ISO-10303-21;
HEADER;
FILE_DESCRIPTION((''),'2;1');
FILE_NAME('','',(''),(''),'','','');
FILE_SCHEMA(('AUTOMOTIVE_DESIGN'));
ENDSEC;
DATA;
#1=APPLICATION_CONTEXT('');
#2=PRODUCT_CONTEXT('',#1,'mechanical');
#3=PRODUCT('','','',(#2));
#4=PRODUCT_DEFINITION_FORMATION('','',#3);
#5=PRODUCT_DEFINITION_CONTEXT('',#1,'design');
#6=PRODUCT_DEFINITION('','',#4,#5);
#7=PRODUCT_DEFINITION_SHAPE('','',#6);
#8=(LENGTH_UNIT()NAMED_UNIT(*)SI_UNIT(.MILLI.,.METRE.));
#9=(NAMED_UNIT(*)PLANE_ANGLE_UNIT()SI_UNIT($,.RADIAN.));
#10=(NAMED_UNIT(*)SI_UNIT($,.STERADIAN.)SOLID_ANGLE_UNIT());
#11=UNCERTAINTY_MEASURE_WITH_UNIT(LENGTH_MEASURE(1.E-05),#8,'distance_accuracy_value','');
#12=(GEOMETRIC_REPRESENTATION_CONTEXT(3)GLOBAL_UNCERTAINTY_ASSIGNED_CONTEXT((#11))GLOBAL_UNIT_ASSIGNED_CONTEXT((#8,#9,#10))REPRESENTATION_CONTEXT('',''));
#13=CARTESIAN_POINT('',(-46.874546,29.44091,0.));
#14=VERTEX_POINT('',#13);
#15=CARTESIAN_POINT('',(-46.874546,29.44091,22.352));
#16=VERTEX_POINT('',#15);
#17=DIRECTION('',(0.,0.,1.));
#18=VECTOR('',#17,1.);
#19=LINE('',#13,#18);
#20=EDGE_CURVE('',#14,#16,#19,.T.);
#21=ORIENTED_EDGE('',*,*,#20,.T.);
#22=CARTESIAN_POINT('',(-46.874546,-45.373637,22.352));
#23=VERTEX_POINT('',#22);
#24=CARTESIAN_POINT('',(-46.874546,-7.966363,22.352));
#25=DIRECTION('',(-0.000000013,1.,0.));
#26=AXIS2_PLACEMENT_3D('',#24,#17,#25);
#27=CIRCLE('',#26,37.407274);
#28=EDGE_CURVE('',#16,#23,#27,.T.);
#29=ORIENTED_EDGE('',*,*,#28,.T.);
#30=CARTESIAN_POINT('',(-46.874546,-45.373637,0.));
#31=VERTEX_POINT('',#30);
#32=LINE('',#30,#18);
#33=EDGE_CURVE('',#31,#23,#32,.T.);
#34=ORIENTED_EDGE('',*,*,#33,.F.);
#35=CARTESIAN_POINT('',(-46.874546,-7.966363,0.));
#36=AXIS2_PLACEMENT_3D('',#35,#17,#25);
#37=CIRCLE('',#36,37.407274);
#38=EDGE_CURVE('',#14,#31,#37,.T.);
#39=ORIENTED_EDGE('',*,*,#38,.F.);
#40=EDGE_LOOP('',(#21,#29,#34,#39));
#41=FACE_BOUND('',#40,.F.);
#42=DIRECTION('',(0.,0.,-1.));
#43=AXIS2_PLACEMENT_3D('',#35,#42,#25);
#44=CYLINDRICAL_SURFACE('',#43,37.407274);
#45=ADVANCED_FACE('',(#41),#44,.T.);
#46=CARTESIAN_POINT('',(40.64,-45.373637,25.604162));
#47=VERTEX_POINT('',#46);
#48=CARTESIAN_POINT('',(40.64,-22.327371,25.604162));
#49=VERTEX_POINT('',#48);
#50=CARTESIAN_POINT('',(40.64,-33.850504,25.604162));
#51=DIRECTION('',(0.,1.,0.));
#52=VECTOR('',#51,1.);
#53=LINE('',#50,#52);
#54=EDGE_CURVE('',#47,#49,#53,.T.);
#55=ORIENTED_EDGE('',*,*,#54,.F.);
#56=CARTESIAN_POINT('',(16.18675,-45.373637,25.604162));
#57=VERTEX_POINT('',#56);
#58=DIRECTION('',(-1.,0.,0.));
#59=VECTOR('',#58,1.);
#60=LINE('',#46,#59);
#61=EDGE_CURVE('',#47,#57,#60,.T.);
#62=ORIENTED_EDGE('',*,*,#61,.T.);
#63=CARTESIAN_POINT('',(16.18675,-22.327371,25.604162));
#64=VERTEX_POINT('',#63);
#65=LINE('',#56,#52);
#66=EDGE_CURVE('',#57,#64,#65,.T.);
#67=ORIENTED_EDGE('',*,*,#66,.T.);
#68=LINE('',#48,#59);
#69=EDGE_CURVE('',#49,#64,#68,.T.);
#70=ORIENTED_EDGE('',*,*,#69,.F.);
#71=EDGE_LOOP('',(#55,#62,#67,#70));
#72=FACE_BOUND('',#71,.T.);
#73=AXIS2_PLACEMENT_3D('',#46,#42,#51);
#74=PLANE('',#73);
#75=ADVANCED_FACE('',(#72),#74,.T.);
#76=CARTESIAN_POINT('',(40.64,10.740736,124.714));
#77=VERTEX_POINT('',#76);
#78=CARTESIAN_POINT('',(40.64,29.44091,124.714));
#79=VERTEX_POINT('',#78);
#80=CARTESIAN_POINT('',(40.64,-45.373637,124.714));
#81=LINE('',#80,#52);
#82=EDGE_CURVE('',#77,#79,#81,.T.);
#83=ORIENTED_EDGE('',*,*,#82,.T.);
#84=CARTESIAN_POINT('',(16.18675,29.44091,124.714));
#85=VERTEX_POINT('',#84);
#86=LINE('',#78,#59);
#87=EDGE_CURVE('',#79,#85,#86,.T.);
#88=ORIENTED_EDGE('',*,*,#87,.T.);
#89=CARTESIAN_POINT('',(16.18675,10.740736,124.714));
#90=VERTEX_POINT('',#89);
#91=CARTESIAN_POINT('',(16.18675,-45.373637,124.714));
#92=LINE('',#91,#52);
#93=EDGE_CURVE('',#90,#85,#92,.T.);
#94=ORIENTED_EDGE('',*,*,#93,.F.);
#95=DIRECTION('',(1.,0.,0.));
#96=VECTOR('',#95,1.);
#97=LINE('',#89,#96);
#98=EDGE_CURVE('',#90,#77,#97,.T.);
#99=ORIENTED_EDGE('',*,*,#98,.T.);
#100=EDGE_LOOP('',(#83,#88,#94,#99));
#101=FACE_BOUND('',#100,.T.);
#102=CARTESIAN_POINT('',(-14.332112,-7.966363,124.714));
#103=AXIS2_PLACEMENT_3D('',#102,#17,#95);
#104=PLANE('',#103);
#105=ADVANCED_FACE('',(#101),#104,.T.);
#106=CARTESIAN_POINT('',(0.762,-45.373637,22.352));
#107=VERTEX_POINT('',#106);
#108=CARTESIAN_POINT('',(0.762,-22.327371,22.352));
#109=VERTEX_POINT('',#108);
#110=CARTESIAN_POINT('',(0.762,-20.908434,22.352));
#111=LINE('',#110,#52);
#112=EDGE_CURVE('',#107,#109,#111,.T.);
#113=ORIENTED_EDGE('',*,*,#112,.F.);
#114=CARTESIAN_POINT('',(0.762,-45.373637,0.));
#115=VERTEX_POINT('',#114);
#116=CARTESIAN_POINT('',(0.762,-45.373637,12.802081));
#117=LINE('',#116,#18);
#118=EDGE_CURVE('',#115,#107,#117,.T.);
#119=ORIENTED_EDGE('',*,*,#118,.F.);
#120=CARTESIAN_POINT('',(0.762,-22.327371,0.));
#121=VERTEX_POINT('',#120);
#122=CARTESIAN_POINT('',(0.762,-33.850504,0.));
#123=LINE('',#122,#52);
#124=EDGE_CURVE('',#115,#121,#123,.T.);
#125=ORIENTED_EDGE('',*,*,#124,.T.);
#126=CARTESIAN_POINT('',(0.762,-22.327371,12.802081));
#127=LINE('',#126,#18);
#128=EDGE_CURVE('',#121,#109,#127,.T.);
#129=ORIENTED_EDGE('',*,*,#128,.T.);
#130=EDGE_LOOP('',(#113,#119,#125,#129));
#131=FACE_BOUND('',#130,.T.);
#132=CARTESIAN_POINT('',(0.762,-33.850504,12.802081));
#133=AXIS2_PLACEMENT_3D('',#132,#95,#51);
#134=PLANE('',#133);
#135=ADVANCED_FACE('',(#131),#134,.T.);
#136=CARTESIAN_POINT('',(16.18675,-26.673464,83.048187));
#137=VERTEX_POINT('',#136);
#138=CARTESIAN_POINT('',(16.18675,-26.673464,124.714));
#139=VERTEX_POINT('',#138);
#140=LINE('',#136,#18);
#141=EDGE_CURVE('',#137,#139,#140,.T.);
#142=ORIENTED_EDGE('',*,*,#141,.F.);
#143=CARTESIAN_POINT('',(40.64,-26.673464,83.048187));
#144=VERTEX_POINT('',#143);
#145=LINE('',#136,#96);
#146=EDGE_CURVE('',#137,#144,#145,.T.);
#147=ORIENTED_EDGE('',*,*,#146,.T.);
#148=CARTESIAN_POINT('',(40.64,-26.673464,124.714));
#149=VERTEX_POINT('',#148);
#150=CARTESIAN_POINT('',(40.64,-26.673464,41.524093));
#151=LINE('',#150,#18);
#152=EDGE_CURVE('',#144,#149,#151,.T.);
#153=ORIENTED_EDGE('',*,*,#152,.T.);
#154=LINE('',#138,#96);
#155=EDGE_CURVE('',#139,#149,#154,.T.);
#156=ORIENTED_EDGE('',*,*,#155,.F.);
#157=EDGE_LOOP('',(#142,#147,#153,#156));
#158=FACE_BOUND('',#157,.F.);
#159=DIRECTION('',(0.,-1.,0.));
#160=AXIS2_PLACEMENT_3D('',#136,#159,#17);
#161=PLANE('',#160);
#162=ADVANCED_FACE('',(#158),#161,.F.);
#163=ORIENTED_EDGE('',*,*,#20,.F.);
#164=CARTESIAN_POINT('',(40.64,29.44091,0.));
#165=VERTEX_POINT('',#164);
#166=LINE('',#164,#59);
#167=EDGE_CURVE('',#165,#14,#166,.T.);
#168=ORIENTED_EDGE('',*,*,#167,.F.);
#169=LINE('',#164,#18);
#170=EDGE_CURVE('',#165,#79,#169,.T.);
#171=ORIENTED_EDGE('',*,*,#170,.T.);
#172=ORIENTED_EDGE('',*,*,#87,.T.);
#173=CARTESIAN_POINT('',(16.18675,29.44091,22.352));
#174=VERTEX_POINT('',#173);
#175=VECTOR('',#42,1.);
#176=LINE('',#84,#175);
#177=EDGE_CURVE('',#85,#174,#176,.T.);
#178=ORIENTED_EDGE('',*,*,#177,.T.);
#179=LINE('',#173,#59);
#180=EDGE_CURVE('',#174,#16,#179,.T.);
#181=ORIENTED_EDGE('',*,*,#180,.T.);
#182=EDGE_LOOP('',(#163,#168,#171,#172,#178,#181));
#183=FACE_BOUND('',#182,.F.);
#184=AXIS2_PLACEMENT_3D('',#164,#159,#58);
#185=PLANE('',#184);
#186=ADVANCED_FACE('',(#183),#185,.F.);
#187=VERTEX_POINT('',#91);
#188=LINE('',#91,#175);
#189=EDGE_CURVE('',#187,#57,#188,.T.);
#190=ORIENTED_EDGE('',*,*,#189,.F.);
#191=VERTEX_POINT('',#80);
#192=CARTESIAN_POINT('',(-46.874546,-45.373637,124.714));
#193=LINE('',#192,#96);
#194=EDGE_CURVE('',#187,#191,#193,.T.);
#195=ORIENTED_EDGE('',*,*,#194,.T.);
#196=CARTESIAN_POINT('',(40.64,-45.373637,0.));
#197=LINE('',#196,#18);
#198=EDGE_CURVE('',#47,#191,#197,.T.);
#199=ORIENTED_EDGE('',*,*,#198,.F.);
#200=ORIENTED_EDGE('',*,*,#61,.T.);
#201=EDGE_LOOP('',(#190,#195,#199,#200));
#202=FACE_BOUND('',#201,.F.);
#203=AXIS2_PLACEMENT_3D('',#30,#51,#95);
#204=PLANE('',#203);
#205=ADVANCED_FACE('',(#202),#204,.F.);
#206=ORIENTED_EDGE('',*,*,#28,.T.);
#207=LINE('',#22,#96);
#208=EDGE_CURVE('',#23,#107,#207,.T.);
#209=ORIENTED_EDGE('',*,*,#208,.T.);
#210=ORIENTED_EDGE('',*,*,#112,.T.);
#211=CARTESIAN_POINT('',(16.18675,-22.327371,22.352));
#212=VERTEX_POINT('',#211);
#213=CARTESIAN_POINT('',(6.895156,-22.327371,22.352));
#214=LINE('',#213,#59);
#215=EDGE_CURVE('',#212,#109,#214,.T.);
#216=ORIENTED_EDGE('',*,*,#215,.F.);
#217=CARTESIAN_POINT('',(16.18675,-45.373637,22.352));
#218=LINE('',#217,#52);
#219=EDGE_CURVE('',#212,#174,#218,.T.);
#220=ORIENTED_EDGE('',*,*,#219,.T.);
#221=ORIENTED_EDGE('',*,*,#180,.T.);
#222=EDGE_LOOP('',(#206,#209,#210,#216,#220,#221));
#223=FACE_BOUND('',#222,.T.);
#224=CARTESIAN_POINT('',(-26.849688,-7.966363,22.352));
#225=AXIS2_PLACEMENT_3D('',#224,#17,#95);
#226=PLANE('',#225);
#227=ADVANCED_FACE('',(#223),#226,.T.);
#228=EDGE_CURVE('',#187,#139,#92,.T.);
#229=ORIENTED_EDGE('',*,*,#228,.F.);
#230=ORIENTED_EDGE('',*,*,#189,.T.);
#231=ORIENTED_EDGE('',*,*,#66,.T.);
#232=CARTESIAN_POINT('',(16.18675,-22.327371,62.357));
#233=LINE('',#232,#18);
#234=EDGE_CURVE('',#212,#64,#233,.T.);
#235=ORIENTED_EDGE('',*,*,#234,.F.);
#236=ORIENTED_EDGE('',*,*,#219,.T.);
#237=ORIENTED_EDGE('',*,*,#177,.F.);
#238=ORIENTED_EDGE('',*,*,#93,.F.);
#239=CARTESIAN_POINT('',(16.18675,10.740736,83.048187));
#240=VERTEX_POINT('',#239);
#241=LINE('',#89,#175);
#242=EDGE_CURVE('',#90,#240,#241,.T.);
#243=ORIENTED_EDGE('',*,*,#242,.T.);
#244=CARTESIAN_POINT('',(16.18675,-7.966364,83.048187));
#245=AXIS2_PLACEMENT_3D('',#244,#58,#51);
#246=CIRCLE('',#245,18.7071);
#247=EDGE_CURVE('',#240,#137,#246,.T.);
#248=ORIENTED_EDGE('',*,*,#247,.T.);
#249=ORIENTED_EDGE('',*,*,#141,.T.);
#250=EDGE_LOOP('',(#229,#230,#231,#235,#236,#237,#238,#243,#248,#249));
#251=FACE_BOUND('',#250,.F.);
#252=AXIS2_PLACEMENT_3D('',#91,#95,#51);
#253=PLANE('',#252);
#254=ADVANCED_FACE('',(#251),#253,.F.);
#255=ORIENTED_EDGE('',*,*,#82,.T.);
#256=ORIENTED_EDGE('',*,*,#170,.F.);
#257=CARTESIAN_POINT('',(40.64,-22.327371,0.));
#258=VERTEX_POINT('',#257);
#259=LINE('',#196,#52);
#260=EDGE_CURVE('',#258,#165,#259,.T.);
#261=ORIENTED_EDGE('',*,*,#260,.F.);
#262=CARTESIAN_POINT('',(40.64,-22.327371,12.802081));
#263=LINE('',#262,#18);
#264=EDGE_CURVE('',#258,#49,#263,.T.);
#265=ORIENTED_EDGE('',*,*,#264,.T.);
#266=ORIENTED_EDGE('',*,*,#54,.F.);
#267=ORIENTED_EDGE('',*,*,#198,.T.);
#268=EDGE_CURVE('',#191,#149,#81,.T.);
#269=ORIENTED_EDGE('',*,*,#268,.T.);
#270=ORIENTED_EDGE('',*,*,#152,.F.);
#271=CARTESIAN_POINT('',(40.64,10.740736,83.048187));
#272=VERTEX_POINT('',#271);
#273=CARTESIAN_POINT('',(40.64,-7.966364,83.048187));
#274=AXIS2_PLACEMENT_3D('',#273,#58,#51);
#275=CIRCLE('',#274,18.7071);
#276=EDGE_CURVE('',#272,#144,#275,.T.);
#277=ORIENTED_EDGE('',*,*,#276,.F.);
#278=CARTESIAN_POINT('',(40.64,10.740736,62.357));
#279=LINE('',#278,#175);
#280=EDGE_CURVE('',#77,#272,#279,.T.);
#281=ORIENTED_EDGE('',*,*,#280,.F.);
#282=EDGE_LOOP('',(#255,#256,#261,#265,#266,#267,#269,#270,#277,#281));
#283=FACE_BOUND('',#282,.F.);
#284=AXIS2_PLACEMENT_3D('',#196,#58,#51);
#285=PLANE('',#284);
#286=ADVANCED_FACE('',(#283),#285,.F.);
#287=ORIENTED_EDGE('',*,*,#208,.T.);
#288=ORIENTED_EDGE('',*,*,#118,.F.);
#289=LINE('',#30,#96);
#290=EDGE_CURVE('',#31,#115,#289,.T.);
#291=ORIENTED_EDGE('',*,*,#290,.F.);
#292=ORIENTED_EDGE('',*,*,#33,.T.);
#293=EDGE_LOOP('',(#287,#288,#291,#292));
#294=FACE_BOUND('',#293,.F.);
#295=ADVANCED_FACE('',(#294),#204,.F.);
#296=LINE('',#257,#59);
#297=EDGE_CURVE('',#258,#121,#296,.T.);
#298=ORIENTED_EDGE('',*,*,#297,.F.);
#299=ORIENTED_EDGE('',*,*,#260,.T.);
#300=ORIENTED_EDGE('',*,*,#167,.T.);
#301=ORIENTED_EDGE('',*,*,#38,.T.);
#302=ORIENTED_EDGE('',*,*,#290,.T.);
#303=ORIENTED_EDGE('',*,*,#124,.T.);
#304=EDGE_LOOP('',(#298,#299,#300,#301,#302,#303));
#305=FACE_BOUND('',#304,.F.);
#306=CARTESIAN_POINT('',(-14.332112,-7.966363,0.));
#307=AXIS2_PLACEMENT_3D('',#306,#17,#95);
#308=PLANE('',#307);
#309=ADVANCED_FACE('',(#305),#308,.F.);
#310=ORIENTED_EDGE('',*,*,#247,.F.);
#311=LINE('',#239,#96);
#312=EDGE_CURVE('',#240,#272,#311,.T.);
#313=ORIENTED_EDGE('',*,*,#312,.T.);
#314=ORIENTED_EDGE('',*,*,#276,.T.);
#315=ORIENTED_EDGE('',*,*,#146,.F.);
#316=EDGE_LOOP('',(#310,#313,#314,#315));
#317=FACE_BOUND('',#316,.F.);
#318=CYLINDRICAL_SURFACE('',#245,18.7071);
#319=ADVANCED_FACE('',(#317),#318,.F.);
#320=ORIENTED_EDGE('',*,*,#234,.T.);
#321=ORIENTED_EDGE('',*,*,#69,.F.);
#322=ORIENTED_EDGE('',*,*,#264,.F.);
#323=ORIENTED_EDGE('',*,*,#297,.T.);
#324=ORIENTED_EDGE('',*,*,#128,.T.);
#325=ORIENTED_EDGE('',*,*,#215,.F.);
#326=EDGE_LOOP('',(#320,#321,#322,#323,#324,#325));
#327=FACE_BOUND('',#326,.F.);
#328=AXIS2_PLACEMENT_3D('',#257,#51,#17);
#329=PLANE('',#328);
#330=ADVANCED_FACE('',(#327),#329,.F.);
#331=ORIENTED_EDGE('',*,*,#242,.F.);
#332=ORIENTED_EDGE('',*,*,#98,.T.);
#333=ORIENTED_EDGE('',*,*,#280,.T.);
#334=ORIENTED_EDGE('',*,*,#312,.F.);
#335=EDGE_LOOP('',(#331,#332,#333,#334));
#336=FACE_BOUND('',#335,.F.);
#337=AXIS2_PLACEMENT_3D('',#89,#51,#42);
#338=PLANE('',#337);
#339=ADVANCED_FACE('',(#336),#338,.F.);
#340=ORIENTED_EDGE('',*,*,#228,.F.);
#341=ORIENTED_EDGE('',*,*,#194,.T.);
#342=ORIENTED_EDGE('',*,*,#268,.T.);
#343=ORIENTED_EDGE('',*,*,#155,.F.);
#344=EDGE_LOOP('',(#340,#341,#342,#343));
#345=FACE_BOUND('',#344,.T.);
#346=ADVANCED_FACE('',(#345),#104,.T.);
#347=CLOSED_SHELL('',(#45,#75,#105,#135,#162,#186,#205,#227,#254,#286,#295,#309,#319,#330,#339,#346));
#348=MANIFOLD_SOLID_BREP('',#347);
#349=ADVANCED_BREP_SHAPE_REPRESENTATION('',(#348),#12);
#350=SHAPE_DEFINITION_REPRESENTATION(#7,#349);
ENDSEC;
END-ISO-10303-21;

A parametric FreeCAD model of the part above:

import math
import FreeCAD as App
import Part
import Sketcher
Q = App.Units.Quantity

doc = App.newDocument("Part")
body = doc.addObject("PartDesign::Body", "Body")

# Sketch on XY plane
sketch1 = body.newObject("Sketcher::SketchObject", "Sketch")
sketch1.AttachmentSupport = (doc.getObject("XY_Plane"), [""])
sketch1.MapMode = "FlatFace"
sketch1.addGeometry(Part.LineSegment(App.Vector(41, 29, 0), App.Vector(-47, 29, 0)), False)
sketch1.addGeometry(Part.ArcOfCircle(Part.Circle(App.Vector(-47, -8, 0), App.Vector(0, 0, 1), 37), math.radians(90), math.radians(270)), False)
sketch1.addGeometry(Part.LineSegment(App.Vector(-47, -45, 0), App.Vector(41, -45, 0)), False)
sketch1.addGeometry(Part.LineSegment(App.Vector(41, -45, 0), App.Vector(41, 29, 0)), False)
sketch1.addConstraint(Sketcher.Constraint("Tangent", 0, 2, 1, 1))
sketch1.addConstraint(Sketcher.Constraint("Tangent", 1, 2, 2, 1))
sketch1.addConstraint(Sketcher.Constraint("Coincident", 2, 2, 3, 1))
sketch1.addConstraint(Sketcher.Constraint("Coincident", 3, 2, 0, 1))
sketch1.addConstraint(Sketcher.Constraint("Horizontal", 0))
sketch1.addConstraint(Sketcher.Constraint("Horizontal", 2))
sketch1.addConstraint(Sketcher.Constraint("Vertical", 3))
sketch1.addConstraint(Sketcher.Constraint("DistanceX", -1, 1, 2, 2, Q("1.6 in")))
sketch1.addConstraint(Sketcher.Constraint("Radius", 1, 37.407274))
sketch1.addConstraint(Sketcher.Constraint("DistanceX", 0, 2, 0, 1, 87.514546))
sketch1.addConstraint(Sketcher.Constraint("DistanceY", -1, 1, 0, 2, 29.44091))
pad1 = body.newObject("PartDesign::Pad", "Pad")
pad1.Profile = sketch1
pad1.Length = Q("4.91 in")

# Sketch on XY plane
sketch2 = body.newObject("Sketcher::SketchObject", "Sketch001")
sketch2.AttachmentSupport = (doc.getObject("XY_Plane"), [""])
sketch2.MapMode = "FlatFace"
sketch2.AttachmentOffset = App.Placement(App.Vector(0, 0, 4.91 * 25.4), App.Rotation())
sketch2.addGeometry(Part.LineSegment(App.Vector(16, -45, 0), App.Vector(16, 29, 0)), False)
sketch2.addGeometry(Part.LineSegment(App.Vector(16, 29, 0), App.Vector(-47, 29, 0)), False)
sketch2.addGeometry(Part.ArcOfCircle(Part.Circle(App.Vector(-47, -8, 0), App.Vector(0, 0, 1), 37), math.radians(90), math.radians(270)), False)
sketch2.addGeometry(Part.LineSegment(App.Vector(-47, -45, 0), App.Vector(16, -45, 0)), False)
sketch2.addConstraint(Sketcher.Constraint("Coincident", 0, 2, 1, 1))
sketch2.addConstraint(Sketcher.Constraint("Tangent", 1, 2, 2, 1))
sketch2.addConstraint(Sketcher.Constraint("Tangent", 2, 2, 3, 1))
sketch2.addConstraint(Sketcher.Constraint("Coincident", 3, 2, 0, 1))
sketch2.addConstraint(Sketcher.Constraint("Vertical", 0))
sketch2.addConstraint(Sketcher.Constraint("Horizontal", 1))
sketch2.addConstraint(Sketcher.Constraint("Horizontal", 3))
sketch2.addConstraint(Sketcher.Constraint("Radius", 2, 37.407274))
sketch2.addConstraint(Sketcher.Constraint("DistanceX", 1, 2, 1, 1, 63.061296))
sketch2.addConstraint(Sketcher.Constraint("DistanceX", -1, 1, 0, 2, 16.18675))
sketch2.addConstraint(Sketcher.Constraint("DistanceY", -1, 1, 0, 2, 29.44091))
pocket1 = body.newObject("PartDesign::Pocket", "Pocket")
pocket1.Profile = sketch2
pocket1.Length = Q("4.03 in")

# Sketch on YZ plane
sketch3 = body.newObject("Sketcher::SketchObject", "Sketch002")
sketch3.AttachmentSupport = (doc.getObject("YZ_Plane"), [""])
sketch3.MapMode = "FlatFace"
sketch3.AttachmentOffset = App.Placement(App.Vector(0, 0, 16.18675), App.Rotation())
sketch3.addGeometry(Part.LineSegment(App.Vector(-27, 125, 0), App.Vector(11, 125, 0)), False)
sketch3.addGeometry(Part.LineSegment(App.Vector(11, 125, 0), App.Vector(11, 83, 0)), False)
sketch3.addGeometry(Part.ArcOfCircle(Part.Circle(App.Vector(-8, 83, 0), App.Vector(0, 0, 1), 19), math.radians(180), math.radians(360)), False)
sketch3.addGeometry(Part.LineSegment(App.Vector(-27, 83, 0), App.Vector(-27, 125, 0)), False)
sketch3.addConstraint(Sketcher.Constraint("Coincident", 0, 2, 1, 1))
sketch3.addConstraint(Sketcher.Constraint("Tangent", 1, 2, 2, 2))
sketch3.addConstraint(Sketcher.Constraint("Tangent", 2, 1, 3, 1))
sketch3.addConstraint(Sketcher.Constraint("Coincident", 3, 2, 0, 1))
sketch3.addConstraint(Sketcher.Constraint("Horizontal", 0))
sketch3.addConstraint(Sketcher.Constraint("Vertical", 1))
sketch3.addConstraint(Sketcher.Constraint("Vertical", 3))
sketch3.addConstraint(Sketcher.Constraint("Radius", 2, Q("0.7365 in")))
sketch3.addConstraint(Sketcher.Constraint("DistanceY", -1, 1, 0, 2, Q("4.91 in")))
sketch3.addConstraint(Sketcher.Constraint("DistanceY", 1, 2, 1, 1, 41.665813))
sketch3.addConstraint(Sketcher.Constraint("DistanceX", 2, 3, -1, 1, 7.966364))
pocket2 = body.newObject("PartDesign::Pocket", "Pocket001")
pocket2.Profile = sketch3
pocket2.Length = Q("1 in")
pocket2.Reversed = True

# Sketch on YZ plane
sketch4 = body.newObject("Sketcher::SketchObject", "Sketch003")
sketch4.AttachmentSupport = (doc.getObject("YZ_Plane"), [""])
sketch4.MapMode = "FlatFace"
sketch4.AttachmentOffset = App.Placement(App.Vector(0, 0, 1.6 * 25.4), App.Rotation())
sketch4.addGeometry(Part.LineSegment(App.Vector(-45, 26, 0), App.Vector(-45, 0, 0)), False)
sketch4.addGeometry(Part.LineSegment(App.Vector(-45, 0, 0), App.Vector(-22, 0, 0)), False)
sketch4.addGeometry(Part.LineSegment(App.Vector(-22, 0, 0), App.Vector(-22, 26, 0)), False)
sketch4.addGeometry(Part.LineSegment(App.Vector(-22, 26, 0), App.Vector(-45, 26, 0)), False)
sketch4.addConstraint(Sketcher.Constraint("Coincident", 0, 2, 1, 1))
sketch4.addConstraint(Sketcher.Constraint("Coincident", 1, 2, 2, 1))
sketch4.addConstraint(Sketcher.Constraint("Coincident", 2, 2, 3, 1))
sketch4.addConstraint(Sketcher.Constraint("Coincident", 3, 2, 0, 1))
sketch4.addConstraint(Sketcher.Constraint("Vertical", 0))
sketch4.addConstraint(Sketcher.Constraint("Horizontal", 1))
sketch4.addConstraint(Sketcher.Constraint("Vertical", 2))
sketch4.addConstraint(Sketcher.Constraint("Horizontal", 3))
sketch4.addConstraint(Sketcher.Constraint("PointOnObject", 0, 2, -1))
sketch4.addConstraint(Sketcher.Constraint("DistanceY", 0, 2, 0, 1, 25.604162))
sketch4.addConstraint(Sketcher.Constraint("DistanceX", 1, 1, 1, 2, 23.046266))
sketch4.addConstraint(Sketcher.Constraint("DistanceX", 1, 2, -1, 1, 22.327371))
pocket3 = body.newObject("PartDesign::Pocket", "Pocket002")
pocket3.Profile = sketch4
pocket3.Length = Q("1.57 in")

doc.recompute()
